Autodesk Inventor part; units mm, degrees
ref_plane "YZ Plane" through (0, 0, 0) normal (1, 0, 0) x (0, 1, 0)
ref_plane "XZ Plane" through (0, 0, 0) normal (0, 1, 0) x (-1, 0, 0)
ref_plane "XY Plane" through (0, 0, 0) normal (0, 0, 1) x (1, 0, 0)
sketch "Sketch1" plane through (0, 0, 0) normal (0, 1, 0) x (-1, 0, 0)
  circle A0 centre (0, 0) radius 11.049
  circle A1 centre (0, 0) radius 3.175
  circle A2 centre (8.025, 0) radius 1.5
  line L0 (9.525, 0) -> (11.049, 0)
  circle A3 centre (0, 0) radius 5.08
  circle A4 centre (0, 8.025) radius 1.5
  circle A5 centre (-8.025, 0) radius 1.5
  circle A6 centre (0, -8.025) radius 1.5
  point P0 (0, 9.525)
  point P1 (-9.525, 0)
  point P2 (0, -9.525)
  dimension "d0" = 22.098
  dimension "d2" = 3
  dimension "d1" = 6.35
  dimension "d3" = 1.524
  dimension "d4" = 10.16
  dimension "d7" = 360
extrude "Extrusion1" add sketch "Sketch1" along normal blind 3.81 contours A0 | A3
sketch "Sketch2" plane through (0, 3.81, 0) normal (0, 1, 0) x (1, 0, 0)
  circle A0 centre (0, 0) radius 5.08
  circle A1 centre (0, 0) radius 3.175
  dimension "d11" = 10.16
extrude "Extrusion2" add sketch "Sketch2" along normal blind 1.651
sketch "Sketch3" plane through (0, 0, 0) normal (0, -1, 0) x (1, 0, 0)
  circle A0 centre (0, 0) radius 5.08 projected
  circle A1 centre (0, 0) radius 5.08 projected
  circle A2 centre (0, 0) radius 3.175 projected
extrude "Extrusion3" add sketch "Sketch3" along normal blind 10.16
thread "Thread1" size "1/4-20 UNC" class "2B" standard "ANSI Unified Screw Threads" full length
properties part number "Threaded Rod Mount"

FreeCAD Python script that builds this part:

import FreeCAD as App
import Part
import Sketcher
from FreeCAD import Vector
Q = App.Units.Quantity

doc = App.newDocument("Part")
body = doc.addObject("PartDesign::Body", "Body")

sketch1 = body.newObject("Sketcher::SketchObject", "Sketch")
sketch1.AttachmentSupport = (doc.getObject("XZ_Plane"), [""])
sketch1.MapMode = "FlatFace"
sketch1.addGeometry(Part.Circle(Vector(0, 0, 0), Vector(0, 0, 1), 11.049), False)
sketch1.addGeometry(Part.Circle(Vector(0, -8.025, 0), Vector(0, 0, 1), 1.5), False)
sketch1.addGeometry(Part.Circle(Vector(8.025, 0, 0), Vector(0, 0, 1), 1.5), False)
sketch1.addGeometry(Part.Circle(Vector(-8.025, 0, 0), Vector(0, 0, 1), 1.5), False)
sketch1.addGeometry(Part.Circle(Vector(0, 8.025, 0), Vector(0, 0, 1), 1.5), False)
sketch1.addGeometry(Part.Circle(Vector(0, 0, 0), Vector(0, 0, 1), 3.175), False)
sketch1.addConstraint(Sketcher.Constraint("Coincident", 0, 3, -1, 1))
sketch1.addConstraint(Sketcher.Constraint("Coincident", 5, 3, -1, 1))
sketch1.addConstraint(Sketcher.Constraint("Equal", 1, 2))
sketch1.addConstraint(Sketcher.Constraint("Equal", 2, 3))
sketch1.addConstraint(Sketcher.Constraint("Equal", 3, 4))
sketch1.addConstraint(Sketcher.Constraint("Symmetric", 2, 3, 3, 3, -1, 1))
sketch1.addConstraint(Sketcher.Constraint("Symmetric", 1, 3, 4, 3, -1, 1))
sketch1.addConstraint(Sketcher.Constraint("PointOnObject", 1, 3, -2))
sketch1.addConstraint(Sketcher.Constraint("PointOnObject", 2, 3, -1))
sketch1.addConstraint(Sketcher.Constraint("Diameter", 0, Q("0.87 in")))
sketch1.addConstraint(Sketcher.Constraint("Diameter", 5, Q("0.25 in")))
sketch1.addConstraint(Sketcher.Constraint("Diameter", 1, Q("0.1181 in")))
sketch1.addConstraint(Sketcher.Constraint("DistanceX", 3, 3, 2, 3, Q("0.6319 in")))
sketch1.addConstraint(Sketcher.Constraint("DistanceY", 1, 3, 4, 3, Q("0.6319 in")))
pad1 = body.newObject("PartDesign::Pad", "Pad")
pad1.Profile = sketch1
pad1.Length = Q("0.15 in")
pad1.Reversed = True

sketch2 = body.newObject("Sketcher::SketchObject", "Sketch001")
sketch2.AttachmentSupport = (doc.getObject("XZ_Plane"), [""])
sketch2.MapMode = "FlatFace"
sketch2.AttachmentOffset = App.Placement(Vector(0, 0, -0.15 * 25.4), App.Rotation())
sketch2.addGeometry(Part.Circle(Vector(0, 0, 0), Vector(0, 0, 1), 5.08), False)
sketch2.addGeometry(Part.Circle(Vector(0, 0, 0), Vector(0, 0, 1), 3.175), False)
sketch2.addConstraint(Sketcher.Constraint("Coincident", 0, 3, -1, 1))
sketch2.addConstraint(Sketcher.Constraint("Coincident", 1, 3, -1, 1))
sketch2.addConstraint(Sketcher.Constraint("Diameter", 0, Q("0.4 in")))
sketch2.addConstraint(Sketcher.Constraint("Diameter", 1, Q("0.25 in")))
pad2 = body.newObject("PartDesign::Pad", "Pad001")
pad2.Profile = sketch2
pad2.Length = Q("0.065 in")
pad2.Reversed = True

sketch3 = body.newObject("Sketcher::SketchObject", "Sketch002")
sketch3.AttachmentSupport = (doc.getObject("XZ_Plane"), [""])
sketch3.MapMode = "FlatFace"
sketch3.addGeometry(Part.Circle(Vector(0, 0, 0), Vector(0, 0, 1), 5.08), False)
sketch3.addGeometry(Part.Circle(Vector(0, 0, 0), Vector(0, 0, 1), 3.175), False)
sketch3.addConstraint(Sketcher.Constraint("Coincident", 0, 3, -1, 1))
sketch3.addConstraint(Sketcher.Constraint("Coincident", 1, 3, -1, 1))
sketch3.addConstraint(Sketcher.Constraint("Diameter", 0, Q("0.4 in")))
sketch3.addConstraint(Sketcher.Constraint("Diameter", 1, Q("0.25 in")))
pad3 = body.newObject("PartDesign::Pad", "Pad002")
pad3.Profile = sketch3
pad3.Length = Q("0.4 in")

doc.recompute()
